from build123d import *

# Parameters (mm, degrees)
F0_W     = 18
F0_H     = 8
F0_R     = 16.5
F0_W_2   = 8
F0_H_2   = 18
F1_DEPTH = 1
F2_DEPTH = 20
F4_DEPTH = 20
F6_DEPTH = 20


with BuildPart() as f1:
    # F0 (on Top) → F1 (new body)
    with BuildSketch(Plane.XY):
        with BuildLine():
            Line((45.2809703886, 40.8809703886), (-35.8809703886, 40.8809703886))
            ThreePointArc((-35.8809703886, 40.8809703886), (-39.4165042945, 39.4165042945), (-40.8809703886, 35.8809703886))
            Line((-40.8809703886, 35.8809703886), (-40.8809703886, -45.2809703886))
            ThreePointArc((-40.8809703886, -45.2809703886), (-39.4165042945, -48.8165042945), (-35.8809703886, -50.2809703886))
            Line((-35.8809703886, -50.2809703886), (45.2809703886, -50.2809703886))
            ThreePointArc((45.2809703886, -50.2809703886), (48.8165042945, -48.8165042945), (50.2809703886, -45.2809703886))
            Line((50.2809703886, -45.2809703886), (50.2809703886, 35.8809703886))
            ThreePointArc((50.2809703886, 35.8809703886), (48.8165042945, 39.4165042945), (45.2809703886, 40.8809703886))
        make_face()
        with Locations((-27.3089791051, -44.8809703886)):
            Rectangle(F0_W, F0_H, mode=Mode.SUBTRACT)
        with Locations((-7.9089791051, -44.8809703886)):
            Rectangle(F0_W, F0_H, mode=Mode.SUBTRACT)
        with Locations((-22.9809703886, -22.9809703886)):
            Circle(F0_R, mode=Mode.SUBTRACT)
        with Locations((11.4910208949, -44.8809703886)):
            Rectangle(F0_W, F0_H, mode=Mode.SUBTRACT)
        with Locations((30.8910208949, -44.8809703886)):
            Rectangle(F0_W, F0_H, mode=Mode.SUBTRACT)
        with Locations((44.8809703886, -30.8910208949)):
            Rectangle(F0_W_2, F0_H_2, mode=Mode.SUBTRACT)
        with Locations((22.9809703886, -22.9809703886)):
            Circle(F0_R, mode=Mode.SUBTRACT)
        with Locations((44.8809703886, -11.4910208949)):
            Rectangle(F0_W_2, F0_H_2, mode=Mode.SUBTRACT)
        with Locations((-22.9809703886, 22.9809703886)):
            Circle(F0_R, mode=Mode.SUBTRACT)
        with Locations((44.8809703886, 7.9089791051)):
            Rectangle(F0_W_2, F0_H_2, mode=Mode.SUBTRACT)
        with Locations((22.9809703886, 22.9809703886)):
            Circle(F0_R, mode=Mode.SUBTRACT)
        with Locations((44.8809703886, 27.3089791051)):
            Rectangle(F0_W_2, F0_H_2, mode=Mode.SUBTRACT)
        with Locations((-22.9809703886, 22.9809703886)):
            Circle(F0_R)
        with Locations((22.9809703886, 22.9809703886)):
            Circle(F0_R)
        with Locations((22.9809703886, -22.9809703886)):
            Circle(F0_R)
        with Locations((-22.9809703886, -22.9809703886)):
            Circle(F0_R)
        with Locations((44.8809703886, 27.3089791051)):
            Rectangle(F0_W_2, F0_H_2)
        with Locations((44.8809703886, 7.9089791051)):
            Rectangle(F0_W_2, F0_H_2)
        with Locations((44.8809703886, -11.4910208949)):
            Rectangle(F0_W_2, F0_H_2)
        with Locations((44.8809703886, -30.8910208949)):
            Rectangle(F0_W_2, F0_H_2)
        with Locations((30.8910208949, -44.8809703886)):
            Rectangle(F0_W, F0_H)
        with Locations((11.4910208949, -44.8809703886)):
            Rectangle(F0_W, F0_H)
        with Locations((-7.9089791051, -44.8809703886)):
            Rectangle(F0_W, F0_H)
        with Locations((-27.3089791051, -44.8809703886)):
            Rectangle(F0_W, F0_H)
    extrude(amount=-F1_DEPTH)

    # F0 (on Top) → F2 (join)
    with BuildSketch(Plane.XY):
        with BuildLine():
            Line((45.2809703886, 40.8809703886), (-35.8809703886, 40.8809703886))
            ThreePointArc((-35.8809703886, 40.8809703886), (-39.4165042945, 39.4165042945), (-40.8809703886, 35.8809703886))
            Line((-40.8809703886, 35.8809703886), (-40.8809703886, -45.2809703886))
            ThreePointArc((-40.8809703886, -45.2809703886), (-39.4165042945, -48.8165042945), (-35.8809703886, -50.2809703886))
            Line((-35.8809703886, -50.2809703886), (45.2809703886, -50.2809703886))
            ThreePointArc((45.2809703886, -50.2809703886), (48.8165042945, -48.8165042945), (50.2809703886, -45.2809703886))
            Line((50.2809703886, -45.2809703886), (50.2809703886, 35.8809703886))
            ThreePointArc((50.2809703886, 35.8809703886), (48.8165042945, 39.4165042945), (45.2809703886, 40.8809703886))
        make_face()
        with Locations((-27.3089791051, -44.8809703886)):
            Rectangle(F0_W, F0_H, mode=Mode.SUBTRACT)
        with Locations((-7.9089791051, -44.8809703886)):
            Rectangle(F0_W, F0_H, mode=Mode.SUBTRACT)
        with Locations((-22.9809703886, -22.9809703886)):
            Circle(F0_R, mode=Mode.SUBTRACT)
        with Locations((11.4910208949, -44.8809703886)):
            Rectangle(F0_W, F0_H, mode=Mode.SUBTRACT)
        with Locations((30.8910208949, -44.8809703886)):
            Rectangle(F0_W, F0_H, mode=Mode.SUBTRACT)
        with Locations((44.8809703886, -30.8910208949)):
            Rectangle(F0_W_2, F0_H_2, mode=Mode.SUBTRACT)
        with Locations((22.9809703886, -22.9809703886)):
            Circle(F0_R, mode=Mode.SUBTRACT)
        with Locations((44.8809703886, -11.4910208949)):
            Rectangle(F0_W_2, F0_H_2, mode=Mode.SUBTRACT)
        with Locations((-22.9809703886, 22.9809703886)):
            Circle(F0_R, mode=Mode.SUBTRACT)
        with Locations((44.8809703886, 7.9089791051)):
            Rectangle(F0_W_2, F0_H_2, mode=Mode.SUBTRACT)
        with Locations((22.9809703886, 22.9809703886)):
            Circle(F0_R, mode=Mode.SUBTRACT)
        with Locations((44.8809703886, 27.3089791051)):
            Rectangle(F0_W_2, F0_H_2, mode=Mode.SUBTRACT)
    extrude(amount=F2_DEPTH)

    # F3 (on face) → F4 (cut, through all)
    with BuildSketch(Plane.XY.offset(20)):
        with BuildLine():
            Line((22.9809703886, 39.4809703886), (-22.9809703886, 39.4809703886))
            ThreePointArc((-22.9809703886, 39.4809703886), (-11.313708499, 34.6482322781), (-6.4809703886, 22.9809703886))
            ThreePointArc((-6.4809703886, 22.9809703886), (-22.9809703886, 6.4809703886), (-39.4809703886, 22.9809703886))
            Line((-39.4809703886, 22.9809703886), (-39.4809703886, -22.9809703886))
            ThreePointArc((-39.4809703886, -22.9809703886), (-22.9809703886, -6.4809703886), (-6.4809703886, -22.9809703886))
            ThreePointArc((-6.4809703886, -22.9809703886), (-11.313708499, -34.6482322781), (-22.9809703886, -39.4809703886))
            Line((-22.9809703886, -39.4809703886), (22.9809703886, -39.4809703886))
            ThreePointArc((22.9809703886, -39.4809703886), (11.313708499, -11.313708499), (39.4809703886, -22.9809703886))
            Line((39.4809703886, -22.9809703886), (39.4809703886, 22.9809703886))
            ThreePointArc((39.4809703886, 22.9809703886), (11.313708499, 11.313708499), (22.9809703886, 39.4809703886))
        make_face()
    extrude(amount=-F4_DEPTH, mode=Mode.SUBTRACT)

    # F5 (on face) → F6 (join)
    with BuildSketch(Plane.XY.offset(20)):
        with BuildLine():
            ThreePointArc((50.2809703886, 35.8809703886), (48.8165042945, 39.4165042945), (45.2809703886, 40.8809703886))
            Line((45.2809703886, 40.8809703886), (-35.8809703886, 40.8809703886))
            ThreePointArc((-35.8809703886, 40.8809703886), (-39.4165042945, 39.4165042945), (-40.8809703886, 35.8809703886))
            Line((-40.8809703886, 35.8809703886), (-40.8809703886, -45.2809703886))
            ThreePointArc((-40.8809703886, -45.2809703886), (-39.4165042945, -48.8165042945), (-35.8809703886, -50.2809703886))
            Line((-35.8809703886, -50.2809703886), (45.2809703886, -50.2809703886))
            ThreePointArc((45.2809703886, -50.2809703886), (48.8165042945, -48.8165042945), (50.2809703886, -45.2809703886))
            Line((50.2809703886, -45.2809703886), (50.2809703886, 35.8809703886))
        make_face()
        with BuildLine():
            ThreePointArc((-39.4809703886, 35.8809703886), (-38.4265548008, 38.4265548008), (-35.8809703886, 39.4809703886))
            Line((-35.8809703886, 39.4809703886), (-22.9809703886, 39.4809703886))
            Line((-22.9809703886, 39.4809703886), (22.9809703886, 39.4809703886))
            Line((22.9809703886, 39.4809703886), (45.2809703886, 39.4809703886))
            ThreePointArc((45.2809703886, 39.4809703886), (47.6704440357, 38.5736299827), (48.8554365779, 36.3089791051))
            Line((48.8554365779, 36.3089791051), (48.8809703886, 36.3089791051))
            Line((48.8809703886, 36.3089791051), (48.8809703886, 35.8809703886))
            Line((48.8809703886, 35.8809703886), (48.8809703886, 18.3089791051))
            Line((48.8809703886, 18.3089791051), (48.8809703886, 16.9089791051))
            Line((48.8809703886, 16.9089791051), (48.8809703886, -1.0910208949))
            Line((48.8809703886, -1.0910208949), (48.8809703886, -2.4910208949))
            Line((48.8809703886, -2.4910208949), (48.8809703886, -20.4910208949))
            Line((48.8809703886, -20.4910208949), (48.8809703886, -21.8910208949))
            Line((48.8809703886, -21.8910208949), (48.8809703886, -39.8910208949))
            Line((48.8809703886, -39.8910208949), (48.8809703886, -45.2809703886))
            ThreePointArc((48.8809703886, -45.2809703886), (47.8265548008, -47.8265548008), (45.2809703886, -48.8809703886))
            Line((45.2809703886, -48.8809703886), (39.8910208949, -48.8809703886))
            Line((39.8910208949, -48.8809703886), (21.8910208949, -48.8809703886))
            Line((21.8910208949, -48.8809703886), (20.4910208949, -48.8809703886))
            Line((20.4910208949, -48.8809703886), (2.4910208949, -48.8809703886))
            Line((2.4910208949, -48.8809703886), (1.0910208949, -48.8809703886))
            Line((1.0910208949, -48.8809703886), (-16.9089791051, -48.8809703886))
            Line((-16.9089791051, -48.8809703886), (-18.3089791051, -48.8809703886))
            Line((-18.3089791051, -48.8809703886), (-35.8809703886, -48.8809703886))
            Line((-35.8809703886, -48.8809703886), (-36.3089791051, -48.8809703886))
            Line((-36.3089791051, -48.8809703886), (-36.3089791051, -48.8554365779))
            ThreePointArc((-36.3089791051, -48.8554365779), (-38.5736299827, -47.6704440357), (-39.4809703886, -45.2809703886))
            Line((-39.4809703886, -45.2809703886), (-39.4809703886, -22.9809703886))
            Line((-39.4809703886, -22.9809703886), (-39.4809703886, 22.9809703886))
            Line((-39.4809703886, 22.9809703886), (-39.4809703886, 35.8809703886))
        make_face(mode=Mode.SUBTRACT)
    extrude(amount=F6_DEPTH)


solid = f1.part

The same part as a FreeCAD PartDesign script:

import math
import FreeCAD as App
import Part
import Sketcher
Q = App.Units.Quantity


def add_polygon(sketch, points):
    """Adds a closed chain of lines whose ends are joined by coincident constraints."""
    first, n = sketch.GeometryCount, len(points)
    for a, b in zip(points, points[1:] + points[:1]):
        sketch.addGeometry(Part.LineSegment(App.Vector(*a, 0), App.Vector(*b, 0)), False)
    for i in range(n):
        sketch.addConstraint(Sketcher.Constraint("Coincident", first + i, 2, first + (i + 1) % n, 1))

doc = App.newDocument("Part")
body = doc.addObject("PartDesign::Body", "Body")

# Sketch on XY plane
sketch1 = body.newObject("Sketcher::SketchObject", "Sketch")
sketch1.AttachmentSupport = (doc.getObject("XY_Plane"), [""])
sketch1.MapMode = "FlatFace"
sketch1.addGeometry([
    Part.LineSegment(App.Vector(45, 41, 0), App.Vector(-36, 41, 0)),  # 0
    Part.ArcOfCircle(Part.Circle(App.Vector(-36, 36, 0), App.Vector(0, 0, 1), 5), math.radians(90), math.radians(180)),  # 1
    Part.LineSegment(App.Vector(-41, 36, 0), App.Vector(-41, -45, 0)),  # 2
    Part.ArcOfCircle(Part.Circle(App.Vector(-36, -45, 0), App.Vector(0, 0, 1), 5), math.radians(-180), math.radians(-90)),  # 3
    Part.LineSegment(App.Vector(-36, -50, 0), App.Vector(45, -50, 0)),  # 4
    Part.ArcOfCircle(Part.Circle(App.Vector(45, -45, 0), App.Vector(0, 0, 1), 5), math.radians(-90), math.radians(0)),  # 5
    Part.LineSegment(App.Vector(50, -45, 0), App.Vector(50, 36, 0)),  # 6
    Part.ArcOfCircle(Part.Circle(App.Vector(45, 36, 0), App.Vector(0, 0, 1), 5), math.radians(0), math.radians(90)),  # 7
], False)
sketch1.addConstraint([
    Sketcher.Constraint("Tangent", 0, 2, 1, 1),
    Sketcher.Constraint("Tangent", 1, 2, 2, 1),
    Sketcher.Constraint("Tangent", 2, 2, 3, 1),
    Sketcher.Constraint("Tangent", 3, 2, 4, 1),
    Sketcher.Constraint("Tangent", 4, 2, 5, 1),
    Sketcher.Constraint("Tangent", 5, 2, 6, 1),
    Sketcher.Constraint("Tangent", 6, 2, 7, 1),
    Sketcher.Constraint("Tangent", 7, 2, 0, 1),
    Sketcher.Constraint("Horizontal", 0),
    Sketcher.Constraint("Vertical", 2),
    Sketcher.Constraint("Horizontal", 4),
    Sketcher.Constraint("Vertical", 6),
    Sketcher.Constraint("Equal", 1, 3),
    Sketcher.Constraint("Equal", 3, 5),
    Sketcher.Constraint("Equal", 5, 7),
    Sketcher.Constraint("Equal", 4, 2),
    Sketcher.Constraint("Radius", 1, Q("5 mm")),
    Sketcher.Constraint("DistanceX", 0, 2, 0, 1, Q("81.161941 mm")),
    Sketcher.Constraint("DistanceX", 1, 3, -1, 1, Q("35.88097 mm")),
    Sketcher.Constraint("DistanceY", -1, 1, 1, 3, Q("35.88097 mm")),
])
pad1 = body.newObject("PartDesign::Pad", "Pad")
pad1.Profile = sketch1
pad1.Length = 1
pad1.Reversed = True

# Sketch on XY plane
sketch2 = body.newObject("Sketcher::SketchObject", "Sketch001")
sketch2.AttachmentSupport = (doc.getObject("XY_Plane"), [""])
sketch2.MapMode = "FlatFace"
sketch2.addGeometry(Part.LineSegment(App.Vector(45, 41, 0), App.Vector(-36, 41, 0)), False)  # 0
sketch2.addGeometry(Part.ArcOfCircle(Part.Circle(App.Vector(-36, 36, 0), App.Vector(0, 0, 1), 5), math.radians(90), math.radians(180)), False)  # 1
sketch2.addGeometry(Part.LineSegment(App.Vector(-41, 36, 0), App.Vector(-41, -45, 0)), False)  # 2
sketch2.addGeometry(Part.ArcOfCircle(Part.Circle(App.Vector(-36, -45, 0), App.Vector(0, 0, 1), 5), math.radians(-180), math.radians(-90)), False)  # 3
sketch2.addGeometry(Part.LineSegment(App.Vector(-36, -50, 0), App.Vector(45, -50, 0)), False)  # 4
sketch2.addGeometry(Part.ArcOfCircle(Part.Circle(App.Vector(45, -45, 0), App.Vector(0, 0, 1), 5), math.radians(-90), math.radians(0)), False)  # 5
sketch2.addGeometry(Part.LineSegment(App.Vector(50, -45, 0), App.Vector(50, 36, 0)), False)  # 6
sketch2.addGeometry(Part.ArcOfCircle(Part.Circle(App.Vector(45, 36, 0), App.Vector(0, 0, 1), 5), math.radians(0), math.radians(90)), False)  # 7
add_polygon(sketch2, [(-18, -49), (-36, -49), (-36, -41), (-18, -41)])  # lines 8-11
add_polygon(sketch2, [(1, -49), (-17, -49), (-17, -41), (1, -41)])  # lines 12-15
sketch2.addGeometry(Part.Circle(App.Vector(-23, -23, 0), App.Vector(0, 0, 1), 16), False)  # 16
add_polygon(sketch2, [(20, -49), (2, -49), (2, -41), (20, -41)])  # lines 17-20
add_polygon(sketch2, [(40, -49), (22, -49), (22, -41), (40, -41)])  # lines 21-24
add_polygon(sketch2, [(49, -40), (41, -40), (41, -22), (49, -22)])  # lines 25-28
sketch2.addGeometry(Part.Circle(App.Vector(23, -23, 0), App.Vector(0, 0, 1), 16), False)  # 29
add_polygon(sketch2, [(49, -20), (41, -20), (41, -2), (49, -2)])  # lines 30-33
sketch2.addGeometry(Part.Circle(App.Vector(-23, 23, 0), App.Vector(0, 0, 1), 16), False)  # 34
add_polygon(sketch2, [(49, -1), (41, -1), (41, 17), (49, 17)])  # lines 35-38
sketch2.addGeometry(Part.Circle(App.Vector(23, 23, 0), App.Vector(0, 0, 1), 16), False)  # 39
add_polygon(sketch2, [(49, 18), (41, 18), (41, 36), (49, 36)])  # lines 40-43
sketch2.addConstraint([
    Sketcher.Constraint("Tangent", 0, 2, 1, 1),
    Sketcher.Constraint("Tangent", 1, 2, 2, 1),
    Sketcher.Constraint("Tangent", 2, 2, 3, 1),
    Sketcher.Constraint("Tangent", 3, 2, 4, 1),
    Sketcher.Constraint("Tangent", 4, 2, 5, 1),
    Sketcher.Constraint("Tangent", 5, 2, 6, 1),
    Sketcher.Constraint("Tangent", 6, 2, 7, 1),
    Sketcher.Constraint("Tangent", 7, 2, 0, 1),
    Sketcher.Constraint("Horizontal", 0),
    Sketcher.Constraint("Vertical", 2),
    Sketcher.Constraint("Horizontal", 4),
    Sketcher.Constraint("Vertical", 6),
    Sketcher.Constraint("Horizontal", 8),
    Sketcher.Constraint("Vertical", 9),
    Sketcher.Constraint("Horizontal", 10),
    Sketcher.Constraint("Vertical", 11),
    Sketcher.Constraint("Horizontal", 12),
    Sketcher.Constraint("Vertical", 13),
    Sketcher.Constraint("Horizontal", 14),
    Sketcher.Constraint("Vertical", 15),
    Sketcher.Constraint("Horizontal", 17),
    Sketcher.Constraint("Vertical", 18),
    Sketcher.Constraint("Horizontal", 19),
    Sketcher.Constraint("Vertical", 20),
    Sketcher.Constraint("Horizontal", 21),
    Sketcher.Constraint("Vertical", 22),
    Sketcher.Constraint("Horizontal", 23),
    Sketcher.Constraint("Vertical", 24),
    Sketcher.Constraint("Horizontal", 25),
    Sketcher.Constraint("Vertical", 26),
    Sketcher.Constraint("Horizontal", 27),
    Sketcher.Constraint("Vertical", 28),
    Sketcher.Constraint("Horizontal", 30),
    Sketcher.Constraint("Vertical", 31),
    Sketcher.Constraint("Horizontal", 32),
    Sketcher.Constraint("Vertical", 33),
    Sketcher.Constraint("Horizontal", 35),
    Sketcher.Constraint("Vertical", 36),
    Sketcher.Constraint("Horizontal", 37),
    Sketcher.Constraint("Vertical", 38),
    Sketcher.Constraint("Horizontal", 40),
    Sketcher.Constraint("Vertical", 41),
    Sketcher.Constraint("Horizontal", 42),
    Sketcher.Constraint("Vertical", 43),
    Sketcher.Constraint("Equal", 1, 3),
    Sketcher.Constraint("Equal", 3, 5),
    Sketcher.Constraint("Equal", 5, 7),
    Sketcher.Constraint("Equal", 16, 29),
    Sketcher.Constraint("Equal", 29, 34),
    Sketcher.Constraint("Equal", 34, 39),
    Sketcher.Constraint("Symmetric", 29, 3, 34, 3, -1, 1),
    Sketcher.Constraint("Symmetric", 16, 3, 39, 3, -1, 1),
    Sketcher.Constraint("Symmetric", 16, 3, 29, 3, -2),
    Sketcher.Constraint("Horizontal", 11, 2, 12, 2),
    Sketcher.Constraint("Horizontal", 10, 2, 13, 2),
    Sketcher.Constraint("Horizontal", 15, 2, 17, 2),
    Sketcher.Constraint("Horizontal", 14, 2, 18, 2),
    Sketcher.Constraint("Horizontal", 20, 2, 21, 2),
    Sketcher.Constraint("Horizontal", 19, 2, 22, 2),
    Sketcher.Constraint("Vertical", 26, 2, 30, 2),
    Sketcher.Constraint("Vertical", 28, 2, 32, 2),
    Sketcher.Constraint("Vertical", 31, 2, 35, 2),
    Sketcher.Constraint("Vertical", 33, 2, 37, 2),
    Sketcher.Constraint("Vertical", 36, 2, 40, 2),
    Sketcher.Constraint("Vertical", 38, 2, 42, 2),
    Sketcher.Constraint("Equal", 10, 12),
    Sketcher.Constraint("Equal", 14, 17),
    Sketcher.Constraint("Equal", 19, 21),
    Sketcher.Constraint("Equal", 4, 2),
    Sketcher.Constraint("Equal", 42, 9),
    Sketcher.Constraint("Equal", 23, 26),
    Sketcher.Constraint("Equal", 28, 31),
    Sketcher.Constraint("Equal", 33, 36),
    Sketcher.Constraint("Equal", 38, 41),
    Sketcher.Constraint("Diameter", 16, Q("33 mm")),
    Sketcher.Constraint("Radius", 1, Q("5 mm")),
    Sketcher.Constraint("DistanceX", 8, 2, 8, 1, Q("18 mm")),
    Sketcher.Constraint("DistanceX", 25, 2, 25, 1, Q("8 mm")),
    Sketcher.Constraint("DistanceX", 3, 3, 16, 3, Q("12.9 mm")),
    Sketcher.Constraint("DistanceY", 3, 3, 16, 3, Q("22.3 mm")),
    Sketcher.Constraint("DistanceX", 29, 3, 5, 3, Q("22.3 mm")),
    Sketcher.Constraint("DistanceY", 34, 3, 1, 3, Q("12.9 mm")),
    Sketcher.Constraint("DistanceY", 3, 2, 8, 2, Q("1.4 mm")),
    Sketcher.Constraint("DistanceX", 11, 2, 12, 2, Q("1.4 mm")),
    Sketcher.Constraint("DistanceX", 15, 2, 17, 2, Q("1.4 mm")),
    Sketcher.Constraint("DistanceX", 20, 2, 21, 2, Q("1.4 mm")),
    Sketcher.Constraint("DistanceX", 25, 2, 5, 3, Q("4.4 mm")),
    Sketcher.Constraint("DistanceY", 26, 2, 30, 2, Q("1.4 mm")),
    Sketcher.Constraint("DistanceY", 31, 2, 35, 2, Q("1.4 mm")),
    Sketcher.Constraint("DistanceY", 36, 2, 40, 2, Q("1.4 mm")),
    Sketcher.Constraint("DistanceX", 0, 2, 0, 1, Q("81.161941 mm")),
    Sketcher.Constraint("DistanceX", 8, 2, -1, 1, Q("36.308979 mm")),
    Sketcher.Constraint("DistanceY", 25, 2, -1, 1, Q("39.891021 mm")),
])
pad2 = body.newObject("PartDesign::Pad", "Pad001")
pad2.Profile = sketch2
pad2.Length = 20

# Sketch on XY plane
sketch3 = body.newObject("Sketcher::SketchObject", "Sketch002")
sketch3.AttachmentSupport = (doc.getObject("XY_Plane"), [""])
sketch3.MapMode = "FlatFace"
sketch3.AttachmentOffset = App.Placement(App.Vector(0, 0, 20), App.Rotation())
sketch3.addGeometry([
    Part.LineSegment(App.Vector(23, 39, 0), App.Vector(-23, 39, 0)),  # 0
    Part.ArcOfCircle(Part.Circle(App.Vector(-23, 23, 0), App.Vector(0, 0, 1), 16), math.radians(0), math.radians(90)),  # 1
    Part.ArcOfCircle(Part.Circle(App.Vector(-23, 23, 0), App.Vector(0, 0, 1), 16), math.radians(180), math.radians(360)),  # 2
    Part.LineSegment(App.Vector(-39, 23, 0), App.Vector(-39, -23, 0)),  # 3
    Part.ArcOfCircle(Part.Circle(App.Vector(-23, -23, 0), App.Vector(0, 0, 1), 16), math.radians(0), math.radians(180)),  # 4
    Part.ArcOfCircle(Part.Circle(App.Vector(-23, -23, 0), App.Vector(0, 0, 1), 16), math.radians(-90), math.radians(0)),  # 5
    Part.LineSegment(App.Vector(-23, -39, 0), App.Vector(23, -39, 0)),  # 6
    Part.ArcOfCircle(Part.Circle(App.Vector(23, -23, 0), App.Vector(0, 0, 1), 16), math.radians(0), math.radians(270)),  # 7
    Part.LineSegment(App.Vector(39, -23, 0), App.Vector(39, 23, 0)),  # 8
    Part.ArcOfCircle(Part.Circle(App.Vector(23, 23, 0), App.Vector(0, 0, 1), 16), math.radians(90), math.radians(360)),  # 9
], False)
sketch3.addConstraint([
    Sketcher.Constraint("Tangent", 0, 2, 1, 2),
    Sketcher.Constraint("Tangent", 1, 1, 2, 2),
    Sketcher.Constraint("Tangent", 2, 1, 3, 1),
    Sketcher.Constraint("Tangent", 3, 2, 4, 2),
    Sketcher.Constraint("Tangent", 4, 1, 5, 2),
    Sketcher.Constraint("Tangent", 5, 1, 6, 1),
    Sketcher.Constraint("Tangent", 6, 2, 7, 2),
    Sketcher.Constraint("Tangent", 7, 1, 8, 1),
    Sketcher.Constraint("Tangent", 8, 2, 9, 2),
    Sketcher.Constraint("Tangent", 9, 1, 0, 1),
    Sketcher.Constraint("Horizontal", 0),
    Sketcher.Constraint("Vertical", 3),
    Sketcher.Constraint("Horizontal", 6),
    Sketcher.Constraint("Vertical", 8),
    Sketcher.Constraint("Equal", 1, 2),
    Sketcher.Constraint("Equal", 2, 4),
    Sketcher.Constraint("Equal", 4, 5),
    Sketcher.Constraint("Equal", 5, 7),
    Sketcher.Constraint("Equal", 7, 9),
    Sketcher.Constraint("Symmetric", 1, 3, 7, 3, -1, 1),
    Sketcher.Constraint("Horizontal", 9, 3, 1, 1),
    Sketcher.Constraint("Horizontal", 3, 2, 4, 1),
    Sketcher.Constraint("Equal", 6, 3),
    Sketcher.Constraint("Radius", 1, Q("16.5 mm")),
    Sketcher.Constraint("DistanceX", 0, 2, 0, 1, Q("45.961941 mm")),
])
pocket1 = body.newObject("PartDesign::Pocket", "Pocket")
pocket1.Profile = sketch3
pocket1.Length = 20

# Sketch on XY plane
sketch4 = body.newObject("Sketcher::SketchObject", "Sketch003")
sketch4.AttachmentSupport = (doc.getObject("XY_Plane"), [""])
sketch4.MapMode = "FlatFace"
sketch4.AttachmentOffset = App.Placement(App.Vector(0, 0, 20), App.Rotation())
sketch4.addGeometry([
    Part.ArcOfCircle(Part.Circle(App.Vector(45.281, 35.881, 0), App.Vector(0, 0, 1), 5), math.radians(0), math.radians(90)),  # 0
    Part.LineSegment(App.Vector(45.281, 40.881, 0), App.Vector(-35.881, 40.881, 0)),  # 1
    Part.ArcOfCircle(Part.Circle(App.Vector(-35.881, 35.881, 0), App.Vector(0, 0, 1), 5), math.radians(90), math.radians(180)),  # 2
    Part.LineSegment(App.Vector(-40.881, 35.881, 0), App.Vector(-40.881, -45.281, 0)),  # 3
    Part.ArcOfCircle(Part.Circle(App.Vector(-35.881, -45.281, 0), App.Vector(0, 0, 1), 5), math.radians(-180), math.radians(-90)),  # 4
    Part.LineSegment(App.Vector(-35.881, -50.281, 0), App.Vector(45.281, -50.281, 0)),  # 5
    Part.ArcOfCircle(Part.Circle(App.Vector(45.281, -45.281, 0), App.Vector(0, 0, 1), 5), math.radians(-90), math.radians(0)),  # 6
    Part.LineSegment(App.Vector(50.281, -45.281, 0), App.Vector(50.281, 35.881, 0)),  # 7
    Part.LineSegment(App.Vector(-39.481, -45.281, 0), App.Vector(-39.481, 35.881, 0)),  # 8
    Part.ArcOfCircle(Part.Circle(App.Vector(-35.881, 35.881, 0), App.Vector(0, 0, 1), 3.6), math.radians(90), math.radians(180)),  # 9
    Part.LineSegment(App.Vector(-35.881, 39.481, 0), App.Vector(45.281, 39.481, 0)),  # 10
    Part.ArcOfCircle(Part.Circle(App.Vector(45.281, 35.881, 0), App.Vector(0, 0, 1), 3.6), math.radians(7), math.radians(90)),  # 11
    Part.LineSegment(App.Vector(48.855, 36.309, 0), App.Vector(48.881, 36.309, 0)),  # 12
    Part.LineSegment(App.Vector(48.881, 36.309, 0), App.Vector(48.881, -45.281, 0)),  # 13
    Part.ArcOfCircle(Part.Circle(App.Vector(45.281, -45.281, 0), App.Vector(0, 0, 1), 3.6), math.radians(-90), math.radians(0)),  # 14
    Part.LineSegment(App.Vector(45.281, -48.881, 0), App.Vector(-36.309, -48.881, 0)),  # 15
    Part.LineSegment(App.Vector(-36.309, -48.881, 0), App.Vector(-36.309, -48.855, 0)),  # 16
    Part.ArcOfCircle(Part.Circle(App.Vector(-35.881, -45.281, 0), App.Vector(0, 0, 1), 3.6), math.radians(180), math.radians(263)),  # 17
], False)
sketch4.addConstraint([
    Sketcher.Constraint("Tangent", 0, 2, 1, 1),
    Sketcher.Constraint("Tangent", 1, 2, 2, 1),
    Sketcher.Constraint("Tangent", 2, 2, 3, 1),
    Sketcher.Constraint("Tangent", 3, 2, 4, 1),
    Sketcher.Constraint("Tangent", 4, 2, 5, 1),
    Sketcher.Constraint("Tangent", 5, 2, 6, 1),
    Sketcher.Constraint("Tangent", 6, 2, 7, 1),
    Sketcher.Constraint("Tangent", 7, 2, 0, 1),
    Sketcher.Constraint("Tangent", 8, 2, 9, 2),
    Sketcher.Constraint("Tangent", 9, 1, 10, 1),
    Sketcher.Constraint("Tangent", 10, 2, 11, 2),
    Sketcher.Constraint("Coincident", 11, 1, 12, 1),
    Sketcher.Constraint("Coincident", 12, 2, 13, 1),
    Sketcher.Constraint("Tangent", 13, 2, 14, 2),
    Sketcher.Constraint("Tangent", 14, 1, 15, 1),
    Sketcher.Constraint("Coincident", 15, 2, 16, 1),
    Sketcher.Constraint("Coincident", 16, 2, 17, 2),
    Sketcher.Constraint("Tangent", 17, 1, 8, 1),
    Sketcher.Constraint("Horizontal", 1),
    Sketcher.Constraint("Vertical", 3),
    Sketcher.Constraint("Horizontal", 5),
    Sketcher.Constraint("Vertical", 7),
    Sketcher.Constraint("Vertical", 8),
    Sketcher.Constraint("Horizontal", 10),
    Sketcher.Constraint("Horizontal", 12),
    Sketcher.Constraint("Vertical", 13),
    Sketcher.Constraint("Horizontal", 15),
    Sketcher.Constraint("Vertical", 16),
    Sketcher.Constraint("Coincident", 9, 3, 2, 3),
    Sketcher.Constraint("Coincident", 11, 3, 0, 3),
    Sketcher.Constraint("Coincident", 14, 3, 6, 3),
    Sketcher.Constraint("Coincident", 17, 3, 4, 3),
    Sketcher.Constraint("Equal", 0, 2),
    Sketcher.Constraint("Equal", 2, 4),
    Sketcher.Constraint("Equal", 4, 6),
    Sketcher.Constraint("Equal", 11, 14),
    Sketcher.Constraint("Equal", 10, 3),
    Sketcher.Constraint("Equal", 15, 13),
    Sketcher.Constraint("Radius", 0, Q("5 mm")),
    Sketcher.Constraint("Radius", 9, Q("3.6 mm")),
    Sketcher.Constraint("DistanceX", 1, 2, 1, 1, Q("81.161941 mm")),
    Sketcher.Constraint("DistanceX", 15, 2, 15, 1, Q("81.589949 mm")),
    Sketcher.Constraint("DistanceX", -1, 1, 0, 3, Q("45.28097 mm")),
    Sketcher.Constraint("DistanceY", -1, 1, 0, 3, Q("35.88097 mm")),
])
pad3 = body.newObject("PartDesign::Pad", "Pad002")
pad3.Profile = sketch4
pad3.Length = 20

doc.recompute()
